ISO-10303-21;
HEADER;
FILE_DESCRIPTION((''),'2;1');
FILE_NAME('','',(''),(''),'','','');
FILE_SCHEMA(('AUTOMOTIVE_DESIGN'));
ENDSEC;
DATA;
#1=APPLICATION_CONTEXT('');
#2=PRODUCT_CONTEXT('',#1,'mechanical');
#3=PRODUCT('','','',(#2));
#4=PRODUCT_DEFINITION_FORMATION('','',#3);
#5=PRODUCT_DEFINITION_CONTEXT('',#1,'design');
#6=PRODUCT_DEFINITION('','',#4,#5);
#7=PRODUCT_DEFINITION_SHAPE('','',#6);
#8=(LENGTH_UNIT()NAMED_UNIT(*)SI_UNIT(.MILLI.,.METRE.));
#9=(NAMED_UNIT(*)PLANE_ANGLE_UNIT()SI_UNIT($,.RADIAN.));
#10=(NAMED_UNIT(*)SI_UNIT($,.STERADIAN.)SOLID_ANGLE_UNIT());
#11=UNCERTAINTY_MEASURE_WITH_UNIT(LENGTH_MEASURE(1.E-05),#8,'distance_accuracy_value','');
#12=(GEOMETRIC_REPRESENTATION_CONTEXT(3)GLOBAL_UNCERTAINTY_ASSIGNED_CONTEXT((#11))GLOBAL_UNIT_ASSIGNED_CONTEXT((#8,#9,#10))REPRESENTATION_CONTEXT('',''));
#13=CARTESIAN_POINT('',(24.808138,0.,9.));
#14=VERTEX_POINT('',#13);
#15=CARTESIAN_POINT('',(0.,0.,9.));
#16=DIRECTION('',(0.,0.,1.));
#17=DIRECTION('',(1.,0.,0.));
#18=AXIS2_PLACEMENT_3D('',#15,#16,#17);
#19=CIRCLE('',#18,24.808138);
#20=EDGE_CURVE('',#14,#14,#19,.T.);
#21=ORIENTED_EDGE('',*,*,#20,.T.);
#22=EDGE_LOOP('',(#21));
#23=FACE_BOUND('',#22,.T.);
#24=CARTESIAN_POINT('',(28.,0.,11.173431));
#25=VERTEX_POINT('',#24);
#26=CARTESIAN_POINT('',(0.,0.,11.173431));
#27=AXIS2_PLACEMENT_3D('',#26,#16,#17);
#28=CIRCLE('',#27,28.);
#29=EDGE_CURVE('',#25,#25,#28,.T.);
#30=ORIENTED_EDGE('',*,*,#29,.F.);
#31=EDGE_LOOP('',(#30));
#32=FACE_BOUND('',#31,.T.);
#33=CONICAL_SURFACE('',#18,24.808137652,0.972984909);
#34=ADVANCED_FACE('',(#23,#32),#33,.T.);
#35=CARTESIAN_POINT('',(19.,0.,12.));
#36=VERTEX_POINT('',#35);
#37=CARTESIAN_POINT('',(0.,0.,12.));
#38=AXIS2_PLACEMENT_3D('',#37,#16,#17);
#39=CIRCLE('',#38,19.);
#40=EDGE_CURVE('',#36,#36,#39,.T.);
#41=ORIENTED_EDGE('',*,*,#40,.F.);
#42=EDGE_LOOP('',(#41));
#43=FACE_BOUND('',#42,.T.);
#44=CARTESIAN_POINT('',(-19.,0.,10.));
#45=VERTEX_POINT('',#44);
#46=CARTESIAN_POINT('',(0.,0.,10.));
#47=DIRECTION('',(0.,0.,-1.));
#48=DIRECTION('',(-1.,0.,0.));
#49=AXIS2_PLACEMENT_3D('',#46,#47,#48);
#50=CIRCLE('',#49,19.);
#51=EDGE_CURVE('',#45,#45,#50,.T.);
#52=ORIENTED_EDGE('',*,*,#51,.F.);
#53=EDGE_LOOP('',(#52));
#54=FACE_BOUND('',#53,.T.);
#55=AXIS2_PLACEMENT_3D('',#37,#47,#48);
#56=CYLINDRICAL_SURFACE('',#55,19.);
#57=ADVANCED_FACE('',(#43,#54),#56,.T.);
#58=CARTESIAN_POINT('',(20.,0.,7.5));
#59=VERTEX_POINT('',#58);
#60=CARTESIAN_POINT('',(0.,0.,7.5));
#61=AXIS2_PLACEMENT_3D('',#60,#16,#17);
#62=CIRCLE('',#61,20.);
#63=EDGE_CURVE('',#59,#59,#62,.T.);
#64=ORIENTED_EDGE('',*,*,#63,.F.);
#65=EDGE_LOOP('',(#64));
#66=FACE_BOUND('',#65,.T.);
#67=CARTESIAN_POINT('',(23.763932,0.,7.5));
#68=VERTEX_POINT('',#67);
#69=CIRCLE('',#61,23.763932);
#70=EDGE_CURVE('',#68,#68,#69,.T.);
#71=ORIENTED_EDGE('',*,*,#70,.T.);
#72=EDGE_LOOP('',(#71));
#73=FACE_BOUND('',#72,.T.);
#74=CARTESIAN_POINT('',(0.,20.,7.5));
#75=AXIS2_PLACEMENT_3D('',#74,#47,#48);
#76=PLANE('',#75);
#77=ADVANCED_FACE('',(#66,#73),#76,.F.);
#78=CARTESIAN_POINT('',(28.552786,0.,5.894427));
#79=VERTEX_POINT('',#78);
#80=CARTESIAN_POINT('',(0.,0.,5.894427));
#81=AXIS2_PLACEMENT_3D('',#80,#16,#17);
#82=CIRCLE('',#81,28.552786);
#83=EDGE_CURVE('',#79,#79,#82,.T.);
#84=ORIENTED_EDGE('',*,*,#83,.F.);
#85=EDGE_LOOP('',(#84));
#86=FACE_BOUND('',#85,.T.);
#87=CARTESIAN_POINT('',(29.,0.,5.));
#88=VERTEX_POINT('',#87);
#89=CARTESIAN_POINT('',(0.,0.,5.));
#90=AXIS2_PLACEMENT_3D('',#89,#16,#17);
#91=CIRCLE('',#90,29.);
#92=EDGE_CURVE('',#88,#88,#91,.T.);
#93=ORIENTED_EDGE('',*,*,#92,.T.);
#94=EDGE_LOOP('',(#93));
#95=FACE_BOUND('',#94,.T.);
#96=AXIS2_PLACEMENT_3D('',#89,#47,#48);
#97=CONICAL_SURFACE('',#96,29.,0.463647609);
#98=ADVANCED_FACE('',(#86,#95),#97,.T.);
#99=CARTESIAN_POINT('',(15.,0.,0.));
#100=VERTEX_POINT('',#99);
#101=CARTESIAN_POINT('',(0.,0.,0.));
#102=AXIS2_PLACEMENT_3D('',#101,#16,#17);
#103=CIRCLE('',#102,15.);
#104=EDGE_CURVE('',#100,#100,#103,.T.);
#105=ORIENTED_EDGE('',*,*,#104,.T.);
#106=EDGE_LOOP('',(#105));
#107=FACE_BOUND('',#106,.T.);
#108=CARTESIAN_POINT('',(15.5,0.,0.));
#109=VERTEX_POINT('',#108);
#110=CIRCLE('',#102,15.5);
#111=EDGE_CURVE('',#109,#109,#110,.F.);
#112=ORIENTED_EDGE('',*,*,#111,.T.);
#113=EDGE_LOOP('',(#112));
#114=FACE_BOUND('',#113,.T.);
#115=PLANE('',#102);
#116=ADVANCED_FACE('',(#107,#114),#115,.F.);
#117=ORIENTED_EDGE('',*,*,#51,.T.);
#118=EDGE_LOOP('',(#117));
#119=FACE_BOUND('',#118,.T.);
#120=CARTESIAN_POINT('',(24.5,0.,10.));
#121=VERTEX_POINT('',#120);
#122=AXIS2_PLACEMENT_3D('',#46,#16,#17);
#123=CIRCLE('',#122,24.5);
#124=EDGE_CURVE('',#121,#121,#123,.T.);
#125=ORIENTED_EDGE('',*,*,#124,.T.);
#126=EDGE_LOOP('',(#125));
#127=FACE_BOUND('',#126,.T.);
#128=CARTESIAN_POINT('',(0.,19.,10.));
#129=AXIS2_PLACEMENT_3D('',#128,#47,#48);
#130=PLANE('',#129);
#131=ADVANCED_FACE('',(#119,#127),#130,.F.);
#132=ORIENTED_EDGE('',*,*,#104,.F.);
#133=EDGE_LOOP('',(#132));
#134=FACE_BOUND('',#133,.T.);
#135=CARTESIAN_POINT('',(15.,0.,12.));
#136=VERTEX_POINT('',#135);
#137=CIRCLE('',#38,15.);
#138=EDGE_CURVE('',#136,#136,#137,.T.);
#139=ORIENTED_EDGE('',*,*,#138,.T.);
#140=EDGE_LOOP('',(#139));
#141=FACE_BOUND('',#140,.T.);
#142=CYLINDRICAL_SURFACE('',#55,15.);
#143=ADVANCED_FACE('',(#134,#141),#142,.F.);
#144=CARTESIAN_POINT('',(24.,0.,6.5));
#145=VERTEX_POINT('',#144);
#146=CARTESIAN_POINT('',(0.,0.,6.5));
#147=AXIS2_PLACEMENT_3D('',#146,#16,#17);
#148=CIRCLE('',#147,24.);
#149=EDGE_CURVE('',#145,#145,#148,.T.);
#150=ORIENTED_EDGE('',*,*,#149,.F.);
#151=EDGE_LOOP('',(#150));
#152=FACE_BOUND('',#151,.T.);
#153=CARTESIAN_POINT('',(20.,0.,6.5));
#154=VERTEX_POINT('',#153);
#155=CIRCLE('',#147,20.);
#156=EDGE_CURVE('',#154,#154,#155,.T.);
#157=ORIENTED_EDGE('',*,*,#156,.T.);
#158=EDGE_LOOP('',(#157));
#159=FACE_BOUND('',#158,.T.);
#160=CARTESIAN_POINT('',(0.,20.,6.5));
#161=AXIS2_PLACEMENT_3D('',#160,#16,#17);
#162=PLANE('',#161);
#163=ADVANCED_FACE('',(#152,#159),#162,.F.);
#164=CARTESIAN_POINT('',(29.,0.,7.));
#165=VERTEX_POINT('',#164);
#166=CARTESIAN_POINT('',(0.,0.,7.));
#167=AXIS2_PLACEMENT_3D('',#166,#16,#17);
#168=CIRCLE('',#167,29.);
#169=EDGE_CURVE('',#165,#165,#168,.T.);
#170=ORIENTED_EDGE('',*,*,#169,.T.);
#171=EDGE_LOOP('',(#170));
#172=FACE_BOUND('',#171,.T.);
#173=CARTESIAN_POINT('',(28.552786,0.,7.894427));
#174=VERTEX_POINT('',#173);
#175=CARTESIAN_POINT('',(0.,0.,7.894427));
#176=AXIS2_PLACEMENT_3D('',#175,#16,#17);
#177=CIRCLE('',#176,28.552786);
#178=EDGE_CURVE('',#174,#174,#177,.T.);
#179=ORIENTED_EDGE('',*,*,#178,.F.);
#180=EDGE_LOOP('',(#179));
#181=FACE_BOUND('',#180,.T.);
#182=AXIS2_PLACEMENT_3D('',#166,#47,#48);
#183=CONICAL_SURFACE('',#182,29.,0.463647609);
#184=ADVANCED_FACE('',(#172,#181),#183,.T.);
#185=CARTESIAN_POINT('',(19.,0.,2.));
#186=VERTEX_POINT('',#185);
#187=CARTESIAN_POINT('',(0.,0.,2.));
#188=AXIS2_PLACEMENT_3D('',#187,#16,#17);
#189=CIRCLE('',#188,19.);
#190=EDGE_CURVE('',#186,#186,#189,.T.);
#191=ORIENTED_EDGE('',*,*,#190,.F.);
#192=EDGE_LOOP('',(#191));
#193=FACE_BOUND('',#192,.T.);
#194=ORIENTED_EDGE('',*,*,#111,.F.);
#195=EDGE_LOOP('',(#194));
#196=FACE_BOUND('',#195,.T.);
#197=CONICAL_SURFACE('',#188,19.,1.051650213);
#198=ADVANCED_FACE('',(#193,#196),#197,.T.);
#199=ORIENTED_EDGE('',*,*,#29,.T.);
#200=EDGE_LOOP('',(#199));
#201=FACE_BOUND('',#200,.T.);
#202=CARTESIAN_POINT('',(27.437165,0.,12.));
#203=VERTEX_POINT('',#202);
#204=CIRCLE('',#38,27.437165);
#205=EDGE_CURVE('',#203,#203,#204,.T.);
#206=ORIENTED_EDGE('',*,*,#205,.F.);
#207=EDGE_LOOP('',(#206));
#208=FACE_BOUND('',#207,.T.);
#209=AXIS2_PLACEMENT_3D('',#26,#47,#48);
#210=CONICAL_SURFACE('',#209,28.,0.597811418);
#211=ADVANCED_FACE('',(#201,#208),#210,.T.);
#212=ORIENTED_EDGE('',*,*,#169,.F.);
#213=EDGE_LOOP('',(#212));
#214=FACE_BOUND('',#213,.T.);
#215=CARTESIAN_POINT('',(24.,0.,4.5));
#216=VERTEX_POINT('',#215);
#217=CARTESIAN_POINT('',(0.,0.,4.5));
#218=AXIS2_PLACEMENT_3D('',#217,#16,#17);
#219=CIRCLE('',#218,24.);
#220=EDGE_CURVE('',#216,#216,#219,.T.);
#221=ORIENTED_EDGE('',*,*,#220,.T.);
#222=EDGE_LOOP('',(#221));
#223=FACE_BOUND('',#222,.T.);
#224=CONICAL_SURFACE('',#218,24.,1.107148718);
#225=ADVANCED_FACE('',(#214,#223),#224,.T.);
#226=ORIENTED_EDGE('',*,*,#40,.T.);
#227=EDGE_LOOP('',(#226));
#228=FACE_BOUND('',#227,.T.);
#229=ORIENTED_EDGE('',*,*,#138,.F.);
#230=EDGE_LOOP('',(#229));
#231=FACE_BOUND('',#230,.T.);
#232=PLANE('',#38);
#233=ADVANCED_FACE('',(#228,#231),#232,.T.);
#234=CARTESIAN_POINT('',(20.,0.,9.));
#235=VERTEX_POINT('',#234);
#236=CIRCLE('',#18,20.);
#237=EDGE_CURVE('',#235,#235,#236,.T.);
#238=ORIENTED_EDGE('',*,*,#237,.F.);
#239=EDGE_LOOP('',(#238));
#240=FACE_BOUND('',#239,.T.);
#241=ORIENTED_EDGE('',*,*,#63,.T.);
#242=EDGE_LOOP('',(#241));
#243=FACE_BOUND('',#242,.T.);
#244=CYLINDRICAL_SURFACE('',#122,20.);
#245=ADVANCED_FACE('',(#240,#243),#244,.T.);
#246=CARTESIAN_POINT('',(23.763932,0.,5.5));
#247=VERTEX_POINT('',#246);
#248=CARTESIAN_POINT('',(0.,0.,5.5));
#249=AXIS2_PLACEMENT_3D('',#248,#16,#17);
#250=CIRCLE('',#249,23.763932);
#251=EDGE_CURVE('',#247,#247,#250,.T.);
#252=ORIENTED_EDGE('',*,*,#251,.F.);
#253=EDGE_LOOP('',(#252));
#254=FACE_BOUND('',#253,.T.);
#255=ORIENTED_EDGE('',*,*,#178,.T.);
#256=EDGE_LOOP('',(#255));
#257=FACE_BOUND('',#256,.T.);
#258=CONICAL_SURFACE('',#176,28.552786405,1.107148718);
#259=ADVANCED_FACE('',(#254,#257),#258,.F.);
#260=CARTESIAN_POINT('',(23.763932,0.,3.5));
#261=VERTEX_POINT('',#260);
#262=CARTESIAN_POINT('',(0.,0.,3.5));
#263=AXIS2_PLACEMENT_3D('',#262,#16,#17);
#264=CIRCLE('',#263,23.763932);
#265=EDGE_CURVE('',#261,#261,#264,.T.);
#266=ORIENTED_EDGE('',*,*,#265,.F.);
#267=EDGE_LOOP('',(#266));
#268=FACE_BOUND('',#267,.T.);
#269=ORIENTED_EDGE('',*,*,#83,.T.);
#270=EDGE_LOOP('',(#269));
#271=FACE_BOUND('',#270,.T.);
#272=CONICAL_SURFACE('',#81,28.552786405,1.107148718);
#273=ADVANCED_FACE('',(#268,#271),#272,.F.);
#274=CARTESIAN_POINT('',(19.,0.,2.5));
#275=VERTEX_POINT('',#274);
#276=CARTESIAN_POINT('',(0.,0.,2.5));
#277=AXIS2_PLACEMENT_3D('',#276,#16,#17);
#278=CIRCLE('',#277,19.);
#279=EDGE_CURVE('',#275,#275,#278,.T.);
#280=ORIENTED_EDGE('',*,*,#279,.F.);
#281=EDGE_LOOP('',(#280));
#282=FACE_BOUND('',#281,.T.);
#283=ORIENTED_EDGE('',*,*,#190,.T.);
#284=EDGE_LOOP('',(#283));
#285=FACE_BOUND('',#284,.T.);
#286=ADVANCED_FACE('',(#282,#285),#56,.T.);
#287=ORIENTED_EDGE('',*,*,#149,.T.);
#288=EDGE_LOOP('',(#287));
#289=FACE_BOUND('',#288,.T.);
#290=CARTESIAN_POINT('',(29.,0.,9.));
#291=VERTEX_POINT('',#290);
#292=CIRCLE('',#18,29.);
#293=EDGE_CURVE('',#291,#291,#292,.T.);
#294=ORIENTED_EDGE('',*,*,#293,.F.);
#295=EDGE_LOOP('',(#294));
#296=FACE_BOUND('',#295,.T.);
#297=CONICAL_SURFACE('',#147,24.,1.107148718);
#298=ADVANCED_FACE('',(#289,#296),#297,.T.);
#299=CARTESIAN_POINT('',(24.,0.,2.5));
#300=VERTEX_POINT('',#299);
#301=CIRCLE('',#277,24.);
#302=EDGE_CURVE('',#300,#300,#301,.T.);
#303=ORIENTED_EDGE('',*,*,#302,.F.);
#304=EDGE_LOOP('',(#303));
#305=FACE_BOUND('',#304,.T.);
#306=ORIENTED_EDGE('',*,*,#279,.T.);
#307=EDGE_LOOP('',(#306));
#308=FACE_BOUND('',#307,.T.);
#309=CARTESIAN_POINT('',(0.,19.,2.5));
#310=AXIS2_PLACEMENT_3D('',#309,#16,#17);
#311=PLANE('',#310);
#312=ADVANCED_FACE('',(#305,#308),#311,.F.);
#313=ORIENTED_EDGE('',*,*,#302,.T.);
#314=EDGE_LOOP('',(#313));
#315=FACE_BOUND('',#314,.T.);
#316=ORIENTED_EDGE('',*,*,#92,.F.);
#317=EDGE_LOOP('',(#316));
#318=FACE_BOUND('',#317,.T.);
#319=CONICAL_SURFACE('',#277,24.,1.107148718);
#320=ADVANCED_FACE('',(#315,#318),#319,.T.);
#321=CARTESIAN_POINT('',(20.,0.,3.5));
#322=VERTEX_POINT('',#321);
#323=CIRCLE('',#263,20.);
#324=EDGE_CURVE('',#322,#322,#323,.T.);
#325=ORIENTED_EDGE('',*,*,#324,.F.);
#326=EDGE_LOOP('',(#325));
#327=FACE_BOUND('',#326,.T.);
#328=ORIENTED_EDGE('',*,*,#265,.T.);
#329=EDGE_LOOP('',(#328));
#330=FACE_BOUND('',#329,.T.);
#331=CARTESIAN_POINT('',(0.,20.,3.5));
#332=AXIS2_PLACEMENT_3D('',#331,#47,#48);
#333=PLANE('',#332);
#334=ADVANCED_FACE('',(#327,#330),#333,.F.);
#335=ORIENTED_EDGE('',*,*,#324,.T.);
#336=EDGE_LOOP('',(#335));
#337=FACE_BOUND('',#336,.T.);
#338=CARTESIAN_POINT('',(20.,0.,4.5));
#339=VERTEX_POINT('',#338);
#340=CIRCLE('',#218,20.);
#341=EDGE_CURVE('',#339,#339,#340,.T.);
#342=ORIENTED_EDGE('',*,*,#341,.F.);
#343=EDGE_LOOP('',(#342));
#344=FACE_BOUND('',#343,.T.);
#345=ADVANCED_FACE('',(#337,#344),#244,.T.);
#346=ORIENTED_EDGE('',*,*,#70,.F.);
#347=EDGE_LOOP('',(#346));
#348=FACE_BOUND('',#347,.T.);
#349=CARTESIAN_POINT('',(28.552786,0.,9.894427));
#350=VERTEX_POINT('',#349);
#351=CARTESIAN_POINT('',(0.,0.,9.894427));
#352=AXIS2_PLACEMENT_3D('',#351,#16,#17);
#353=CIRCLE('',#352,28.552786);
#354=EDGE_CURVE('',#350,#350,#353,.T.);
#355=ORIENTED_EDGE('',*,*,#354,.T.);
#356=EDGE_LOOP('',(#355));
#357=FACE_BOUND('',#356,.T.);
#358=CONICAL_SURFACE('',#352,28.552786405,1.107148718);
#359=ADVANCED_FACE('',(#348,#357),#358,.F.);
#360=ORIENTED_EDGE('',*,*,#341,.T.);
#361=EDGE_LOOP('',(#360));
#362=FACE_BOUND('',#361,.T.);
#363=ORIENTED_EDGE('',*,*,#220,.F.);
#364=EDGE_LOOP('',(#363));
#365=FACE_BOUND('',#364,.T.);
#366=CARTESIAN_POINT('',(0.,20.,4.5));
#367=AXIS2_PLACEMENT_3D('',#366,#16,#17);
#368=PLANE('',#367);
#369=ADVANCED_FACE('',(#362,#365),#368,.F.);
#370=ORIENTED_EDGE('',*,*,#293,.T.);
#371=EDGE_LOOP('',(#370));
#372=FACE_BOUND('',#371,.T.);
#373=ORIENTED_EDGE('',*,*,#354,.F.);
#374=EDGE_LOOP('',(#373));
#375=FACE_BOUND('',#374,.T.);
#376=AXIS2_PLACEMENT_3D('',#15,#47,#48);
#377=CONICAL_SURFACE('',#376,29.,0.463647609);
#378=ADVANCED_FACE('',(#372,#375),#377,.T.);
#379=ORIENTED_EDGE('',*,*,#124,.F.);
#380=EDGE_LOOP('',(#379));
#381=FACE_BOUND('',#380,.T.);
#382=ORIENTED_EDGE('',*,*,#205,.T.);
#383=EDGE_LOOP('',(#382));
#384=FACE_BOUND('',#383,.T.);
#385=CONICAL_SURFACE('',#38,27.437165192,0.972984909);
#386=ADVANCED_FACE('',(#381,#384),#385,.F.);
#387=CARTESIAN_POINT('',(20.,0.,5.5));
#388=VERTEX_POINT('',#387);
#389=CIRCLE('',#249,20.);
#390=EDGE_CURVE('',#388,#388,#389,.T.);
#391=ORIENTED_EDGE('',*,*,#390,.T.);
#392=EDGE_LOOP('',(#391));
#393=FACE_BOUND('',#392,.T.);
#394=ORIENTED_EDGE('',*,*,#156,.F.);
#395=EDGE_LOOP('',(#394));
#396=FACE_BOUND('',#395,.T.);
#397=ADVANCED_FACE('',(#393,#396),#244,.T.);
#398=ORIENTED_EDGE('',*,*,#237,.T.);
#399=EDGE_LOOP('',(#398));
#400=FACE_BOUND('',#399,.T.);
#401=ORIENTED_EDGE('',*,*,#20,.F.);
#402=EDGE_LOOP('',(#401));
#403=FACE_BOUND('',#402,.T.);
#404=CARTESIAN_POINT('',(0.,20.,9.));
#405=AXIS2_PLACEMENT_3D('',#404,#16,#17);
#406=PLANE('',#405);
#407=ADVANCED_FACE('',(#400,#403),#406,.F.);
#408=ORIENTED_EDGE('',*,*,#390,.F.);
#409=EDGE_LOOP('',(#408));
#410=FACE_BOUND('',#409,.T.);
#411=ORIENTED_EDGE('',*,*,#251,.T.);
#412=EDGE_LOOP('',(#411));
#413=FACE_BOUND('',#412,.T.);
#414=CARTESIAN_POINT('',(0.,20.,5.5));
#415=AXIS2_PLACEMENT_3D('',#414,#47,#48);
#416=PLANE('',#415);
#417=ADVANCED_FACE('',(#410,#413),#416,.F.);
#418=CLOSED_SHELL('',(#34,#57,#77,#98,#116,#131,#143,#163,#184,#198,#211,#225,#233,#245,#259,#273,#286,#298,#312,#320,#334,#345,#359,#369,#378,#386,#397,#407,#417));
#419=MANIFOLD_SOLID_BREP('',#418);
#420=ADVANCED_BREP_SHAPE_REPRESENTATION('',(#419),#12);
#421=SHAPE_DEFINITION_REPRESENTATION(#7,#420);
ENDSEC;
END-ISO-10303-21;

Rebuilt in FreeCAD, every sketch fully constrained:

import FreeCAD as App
import Part
import Sketcher
from FreeCAD import Vector


def edges_at(feature, points):
    """Names of the edges that pass closest to the given points."""
    edges = feature.Shape.Edges
    near = lambda p: min(range(len(edges)), key=lambda i: edges[i].distToShape(Part.Vertex(*p))[0])
    return sorted({f"Edge{near(p) + 1}" for p in points})


def add_polygon(sketch, points):
    """Adds a closed chain of lines whose ends are joined by coincident constraints."""
    first, n = sketch.GeometryCount, len(points)
    for a, b in zip(points, points[1:] + points[:1]):
        sketch.addGeometry(Part.LineSegment(App.Vector(*a, 0), App.Vector(*b, 0)), False)
    for i in range(n):
        sketch.addConstraint(Sketcher.Constraint("Coincident", first + i, 2, first + (i + 1) % n, 1))

doc = App.newDocument("Part")
body = doc.addObject("PartDesign::Body", "Body")

# Sketch on XY plane
sketch1 = body.newObject("Sketcher::SketchObject", "Sketch")
sketch1.AttachmentSupport = (doc.getObject("XY_Plane"), [""])
sketch1.MapMode = "FlatFace"
sketch1.addGeometry(Part.Circle(Vector(0, 0, 0), Vector(0, 0, 1), 19), False)
sketch1.addGeometry(Part.Circle(Vector(0, 0, 0), Vector(0, 0, 1), 15), False)
sketch1.addConstraint(Sketcher.Constraint("Coincident", 0, 3, -1, 1))
sketch1.addConstraint(Sketcher.Constraint("Coincident", 1, 3, -1, 1))
sketch1.addConstraint(Sketcher.Constraint("Diameter", 0, 38.0))
sketch1.addConstraint(Sketcher.Constraint("Diameter", 1, 30.0))
pad1 = body.newObject("PartDesign::Pad", "Pad")
pad1.Profile = sketch1
pad1.Length = 12
doc.recompute()

chamfer = body.newObject("PartDesign::Chamfer", "Chamfer")
chamfer.Base = (pad1, edges_at(pad1, [(-19, 0, 0)]))
chamfer.ChamferType = "Two distances"
chamfer.Size = 3.5
chamfer.Size2 = 2
chamfer.FlipDirection = True

# Sketch on YZ plane
sketch2 = body.newObject("Sketcher::SketchObject", "Sketch001")
sketch2.AttachmentSupport = (doc.getObject("YZ_Plane"), [""])
sketch2.MapMode = "FlatFace"
add_polygon(sketch2, [(19, 10), (19, 2.5), (24, 2.5), (29, 5), (28.552786, 5.894427), (23.763932, 3.5), (20, 3.5), (20, 4.5), (24, 4.5), (29, 7), (28.552786, 7.894427), (23.763932, 5.5), (20, 5.5), (20, 6.5), (24, 6.5), (29, 9), (28.552786, 9.894427), (23.763932, 7.5), (20, 7.5), (20, 9), (24.808138, 9), (28, 11.173431), (27.437165, 12), (24.5, 10)])  # lines 0-23
sketch2.addConstraint(Sketcher.Constraint("Vertical", 0))
sketch2.addConstraint(Sketcher.Constraint("Horizontal", 1))
sketch2.addConstraint(Sketcher.Constraint("Horizontal", 5))
sketch2.addConstraint(Sketcher.Constraint("Vertical", 6))
sketch2.addConstraint(Sketcher.Constraint("Horizontal", 7))
sketch2.addConstraint(Sketcher.Constraint("Horizontal", 11))
sketch2.addConstraint(Sketcher.Constraint("Vertical", 12))
sketch2.addConstraint(Sketcher.Constraint("Horizontal", 13))
sketch2.addConstraint(Sketcher.Constraint("Horizontal", 17))
sketch2.addConstraint(Sketcher.Constraint("Vertical", 18))
sketch2.addConstraint(Sketcher.Constraint("Horizontal", 19))
sketch2.addConstraint(Sketcher.Constraint("Horizontal", 23))
sketch2.addConstraint(Sketcher.Constraint("Perpendicular", 2, 3))
sketch2.addConstraint(Sketcher.Constraint("Perpendicular", 3, 4))
sketch2.addConstraint(Sketcher.Constraint("Parallel", 4, 8))
sketch2.addConstraint(Sketcher.Constraint("Perpendicular", 8, 9))
sketch2.addConstraint(Sketcher.Constraint("Perpendicular", 9, 10))
sketch2.addConstraint(Sketcher.Constraint("Parallel", 10, 14))
sketch2.addConstraint(Sketcher.Constraint("Perpendicular", 14, 15))
sketch2.addConstraint(Sketcher.Constraint("Perpendicular", 15, 16))
sketch2.addConstraint(Sketcher.Constraint("Perpendicular", 20, 21))
sketch2.addConstraint(Sketcher.Constraint("Perpendicular", 21, 22))
sketch2.addConstraint(Sketcher.Constraint("Horizontal", 14, 2, 18, 2))
sketch2.addConstraint(Sketcher.Constraint("Vertical", 1, 2, 7, 2))
sketch2.addConstraint(Sketcher.Constraint("Vertical", 2, 2, 8, 2))
sketch2.addConstraint(Sketcher.Constraint("Vertical", 3, 2, 9, 2))
sketch2.addConstraint(Sketcher.Constraint("Vertical", 4, 2, 10, 2))
sketch2.addConstraint(Sketcher.Constraint("Vertical", 6, 2, 11, 2))
sketch2.addConstraint(Sketcher.Constraint("Vertical", 7, 2, 13, 2))
sketch2.addConstraint(Sketcher.Constraint("Vertical", 8, 2, 14, 2))
sketch2.addConstraint(Sketcher.Constraint("Vertical", 9, 2, 15, 2))
sketch2.addConstraint(Sketcher.Constraint("Vertical", 10, 2, 16, 2))
sketch2.addConstraint(Sketcher.Constraint("Vertical", 12, 2, 17, 2))
sketch2.addConstraint(Sketcher.Constraint("Equal", 6, 12))
sketch2.addConstraint(Sketcher.Constraint("Equal", 15, 21))
sketch2.addConstraint(Sketcher.Constraint("DistanceX", 1, 1, 1, 2, 5.0))
sketch2.addConstraint(Sketcher.Constraint("DistanceX", 7, 1, 7, 2, 4.0))
sketch2.addConstraint(Sketcher.Constraint("DistanceY", 6, 1, 6, 2, 1.0))
sketch2.addConstraint(Sketcher.Constraint("Distance", 3, 1.0))
sketch2.addConstraint(Sketcher.Constraint("DistanceX", 23, 2, 23, 1, 5.5))
sketch2.addConstraint(Sketcher.Constraint("DistanceY", 0, 2, 0, 1, 7.5))
sketch2.addConstraint(Sketcher.Constraint("DistanceY", 18, 1, 18, 2, 1.5))
sketch2.addConstraint(Sketcher.Constraint("DistanceX", -1, 1, 0, 2, 19.0))
sketch2.addConstraint(Sketcher.Constraint("DistanceX", -1, 1, 2, 2, 29.0))
sketch2.addConstraint(Sketcher.Constraint("DistanceY", -1, 1, 2, 2, 5.0))
sketch2.addConstraint(Sketcher.Constraint("DistanceY", -1, 1, 8, 2, 7.0))
sketch2.addConstraint(Sketcher.Constraint("DistanceX", -1, 1, 20, 2, 28.0))
sketch2.addConstraint(Sketcher.Constraint("DistanceY", -1, 1, 21, 2, 12.0))
revolution = body.newObject("PartDesign::Revolution", "Revolution")
revolution.Profile = sketch2
revolution.ReferenceAxis = (sketch2, ["V_Axis"])
revolution.Angle = 360

doc.recompute()
